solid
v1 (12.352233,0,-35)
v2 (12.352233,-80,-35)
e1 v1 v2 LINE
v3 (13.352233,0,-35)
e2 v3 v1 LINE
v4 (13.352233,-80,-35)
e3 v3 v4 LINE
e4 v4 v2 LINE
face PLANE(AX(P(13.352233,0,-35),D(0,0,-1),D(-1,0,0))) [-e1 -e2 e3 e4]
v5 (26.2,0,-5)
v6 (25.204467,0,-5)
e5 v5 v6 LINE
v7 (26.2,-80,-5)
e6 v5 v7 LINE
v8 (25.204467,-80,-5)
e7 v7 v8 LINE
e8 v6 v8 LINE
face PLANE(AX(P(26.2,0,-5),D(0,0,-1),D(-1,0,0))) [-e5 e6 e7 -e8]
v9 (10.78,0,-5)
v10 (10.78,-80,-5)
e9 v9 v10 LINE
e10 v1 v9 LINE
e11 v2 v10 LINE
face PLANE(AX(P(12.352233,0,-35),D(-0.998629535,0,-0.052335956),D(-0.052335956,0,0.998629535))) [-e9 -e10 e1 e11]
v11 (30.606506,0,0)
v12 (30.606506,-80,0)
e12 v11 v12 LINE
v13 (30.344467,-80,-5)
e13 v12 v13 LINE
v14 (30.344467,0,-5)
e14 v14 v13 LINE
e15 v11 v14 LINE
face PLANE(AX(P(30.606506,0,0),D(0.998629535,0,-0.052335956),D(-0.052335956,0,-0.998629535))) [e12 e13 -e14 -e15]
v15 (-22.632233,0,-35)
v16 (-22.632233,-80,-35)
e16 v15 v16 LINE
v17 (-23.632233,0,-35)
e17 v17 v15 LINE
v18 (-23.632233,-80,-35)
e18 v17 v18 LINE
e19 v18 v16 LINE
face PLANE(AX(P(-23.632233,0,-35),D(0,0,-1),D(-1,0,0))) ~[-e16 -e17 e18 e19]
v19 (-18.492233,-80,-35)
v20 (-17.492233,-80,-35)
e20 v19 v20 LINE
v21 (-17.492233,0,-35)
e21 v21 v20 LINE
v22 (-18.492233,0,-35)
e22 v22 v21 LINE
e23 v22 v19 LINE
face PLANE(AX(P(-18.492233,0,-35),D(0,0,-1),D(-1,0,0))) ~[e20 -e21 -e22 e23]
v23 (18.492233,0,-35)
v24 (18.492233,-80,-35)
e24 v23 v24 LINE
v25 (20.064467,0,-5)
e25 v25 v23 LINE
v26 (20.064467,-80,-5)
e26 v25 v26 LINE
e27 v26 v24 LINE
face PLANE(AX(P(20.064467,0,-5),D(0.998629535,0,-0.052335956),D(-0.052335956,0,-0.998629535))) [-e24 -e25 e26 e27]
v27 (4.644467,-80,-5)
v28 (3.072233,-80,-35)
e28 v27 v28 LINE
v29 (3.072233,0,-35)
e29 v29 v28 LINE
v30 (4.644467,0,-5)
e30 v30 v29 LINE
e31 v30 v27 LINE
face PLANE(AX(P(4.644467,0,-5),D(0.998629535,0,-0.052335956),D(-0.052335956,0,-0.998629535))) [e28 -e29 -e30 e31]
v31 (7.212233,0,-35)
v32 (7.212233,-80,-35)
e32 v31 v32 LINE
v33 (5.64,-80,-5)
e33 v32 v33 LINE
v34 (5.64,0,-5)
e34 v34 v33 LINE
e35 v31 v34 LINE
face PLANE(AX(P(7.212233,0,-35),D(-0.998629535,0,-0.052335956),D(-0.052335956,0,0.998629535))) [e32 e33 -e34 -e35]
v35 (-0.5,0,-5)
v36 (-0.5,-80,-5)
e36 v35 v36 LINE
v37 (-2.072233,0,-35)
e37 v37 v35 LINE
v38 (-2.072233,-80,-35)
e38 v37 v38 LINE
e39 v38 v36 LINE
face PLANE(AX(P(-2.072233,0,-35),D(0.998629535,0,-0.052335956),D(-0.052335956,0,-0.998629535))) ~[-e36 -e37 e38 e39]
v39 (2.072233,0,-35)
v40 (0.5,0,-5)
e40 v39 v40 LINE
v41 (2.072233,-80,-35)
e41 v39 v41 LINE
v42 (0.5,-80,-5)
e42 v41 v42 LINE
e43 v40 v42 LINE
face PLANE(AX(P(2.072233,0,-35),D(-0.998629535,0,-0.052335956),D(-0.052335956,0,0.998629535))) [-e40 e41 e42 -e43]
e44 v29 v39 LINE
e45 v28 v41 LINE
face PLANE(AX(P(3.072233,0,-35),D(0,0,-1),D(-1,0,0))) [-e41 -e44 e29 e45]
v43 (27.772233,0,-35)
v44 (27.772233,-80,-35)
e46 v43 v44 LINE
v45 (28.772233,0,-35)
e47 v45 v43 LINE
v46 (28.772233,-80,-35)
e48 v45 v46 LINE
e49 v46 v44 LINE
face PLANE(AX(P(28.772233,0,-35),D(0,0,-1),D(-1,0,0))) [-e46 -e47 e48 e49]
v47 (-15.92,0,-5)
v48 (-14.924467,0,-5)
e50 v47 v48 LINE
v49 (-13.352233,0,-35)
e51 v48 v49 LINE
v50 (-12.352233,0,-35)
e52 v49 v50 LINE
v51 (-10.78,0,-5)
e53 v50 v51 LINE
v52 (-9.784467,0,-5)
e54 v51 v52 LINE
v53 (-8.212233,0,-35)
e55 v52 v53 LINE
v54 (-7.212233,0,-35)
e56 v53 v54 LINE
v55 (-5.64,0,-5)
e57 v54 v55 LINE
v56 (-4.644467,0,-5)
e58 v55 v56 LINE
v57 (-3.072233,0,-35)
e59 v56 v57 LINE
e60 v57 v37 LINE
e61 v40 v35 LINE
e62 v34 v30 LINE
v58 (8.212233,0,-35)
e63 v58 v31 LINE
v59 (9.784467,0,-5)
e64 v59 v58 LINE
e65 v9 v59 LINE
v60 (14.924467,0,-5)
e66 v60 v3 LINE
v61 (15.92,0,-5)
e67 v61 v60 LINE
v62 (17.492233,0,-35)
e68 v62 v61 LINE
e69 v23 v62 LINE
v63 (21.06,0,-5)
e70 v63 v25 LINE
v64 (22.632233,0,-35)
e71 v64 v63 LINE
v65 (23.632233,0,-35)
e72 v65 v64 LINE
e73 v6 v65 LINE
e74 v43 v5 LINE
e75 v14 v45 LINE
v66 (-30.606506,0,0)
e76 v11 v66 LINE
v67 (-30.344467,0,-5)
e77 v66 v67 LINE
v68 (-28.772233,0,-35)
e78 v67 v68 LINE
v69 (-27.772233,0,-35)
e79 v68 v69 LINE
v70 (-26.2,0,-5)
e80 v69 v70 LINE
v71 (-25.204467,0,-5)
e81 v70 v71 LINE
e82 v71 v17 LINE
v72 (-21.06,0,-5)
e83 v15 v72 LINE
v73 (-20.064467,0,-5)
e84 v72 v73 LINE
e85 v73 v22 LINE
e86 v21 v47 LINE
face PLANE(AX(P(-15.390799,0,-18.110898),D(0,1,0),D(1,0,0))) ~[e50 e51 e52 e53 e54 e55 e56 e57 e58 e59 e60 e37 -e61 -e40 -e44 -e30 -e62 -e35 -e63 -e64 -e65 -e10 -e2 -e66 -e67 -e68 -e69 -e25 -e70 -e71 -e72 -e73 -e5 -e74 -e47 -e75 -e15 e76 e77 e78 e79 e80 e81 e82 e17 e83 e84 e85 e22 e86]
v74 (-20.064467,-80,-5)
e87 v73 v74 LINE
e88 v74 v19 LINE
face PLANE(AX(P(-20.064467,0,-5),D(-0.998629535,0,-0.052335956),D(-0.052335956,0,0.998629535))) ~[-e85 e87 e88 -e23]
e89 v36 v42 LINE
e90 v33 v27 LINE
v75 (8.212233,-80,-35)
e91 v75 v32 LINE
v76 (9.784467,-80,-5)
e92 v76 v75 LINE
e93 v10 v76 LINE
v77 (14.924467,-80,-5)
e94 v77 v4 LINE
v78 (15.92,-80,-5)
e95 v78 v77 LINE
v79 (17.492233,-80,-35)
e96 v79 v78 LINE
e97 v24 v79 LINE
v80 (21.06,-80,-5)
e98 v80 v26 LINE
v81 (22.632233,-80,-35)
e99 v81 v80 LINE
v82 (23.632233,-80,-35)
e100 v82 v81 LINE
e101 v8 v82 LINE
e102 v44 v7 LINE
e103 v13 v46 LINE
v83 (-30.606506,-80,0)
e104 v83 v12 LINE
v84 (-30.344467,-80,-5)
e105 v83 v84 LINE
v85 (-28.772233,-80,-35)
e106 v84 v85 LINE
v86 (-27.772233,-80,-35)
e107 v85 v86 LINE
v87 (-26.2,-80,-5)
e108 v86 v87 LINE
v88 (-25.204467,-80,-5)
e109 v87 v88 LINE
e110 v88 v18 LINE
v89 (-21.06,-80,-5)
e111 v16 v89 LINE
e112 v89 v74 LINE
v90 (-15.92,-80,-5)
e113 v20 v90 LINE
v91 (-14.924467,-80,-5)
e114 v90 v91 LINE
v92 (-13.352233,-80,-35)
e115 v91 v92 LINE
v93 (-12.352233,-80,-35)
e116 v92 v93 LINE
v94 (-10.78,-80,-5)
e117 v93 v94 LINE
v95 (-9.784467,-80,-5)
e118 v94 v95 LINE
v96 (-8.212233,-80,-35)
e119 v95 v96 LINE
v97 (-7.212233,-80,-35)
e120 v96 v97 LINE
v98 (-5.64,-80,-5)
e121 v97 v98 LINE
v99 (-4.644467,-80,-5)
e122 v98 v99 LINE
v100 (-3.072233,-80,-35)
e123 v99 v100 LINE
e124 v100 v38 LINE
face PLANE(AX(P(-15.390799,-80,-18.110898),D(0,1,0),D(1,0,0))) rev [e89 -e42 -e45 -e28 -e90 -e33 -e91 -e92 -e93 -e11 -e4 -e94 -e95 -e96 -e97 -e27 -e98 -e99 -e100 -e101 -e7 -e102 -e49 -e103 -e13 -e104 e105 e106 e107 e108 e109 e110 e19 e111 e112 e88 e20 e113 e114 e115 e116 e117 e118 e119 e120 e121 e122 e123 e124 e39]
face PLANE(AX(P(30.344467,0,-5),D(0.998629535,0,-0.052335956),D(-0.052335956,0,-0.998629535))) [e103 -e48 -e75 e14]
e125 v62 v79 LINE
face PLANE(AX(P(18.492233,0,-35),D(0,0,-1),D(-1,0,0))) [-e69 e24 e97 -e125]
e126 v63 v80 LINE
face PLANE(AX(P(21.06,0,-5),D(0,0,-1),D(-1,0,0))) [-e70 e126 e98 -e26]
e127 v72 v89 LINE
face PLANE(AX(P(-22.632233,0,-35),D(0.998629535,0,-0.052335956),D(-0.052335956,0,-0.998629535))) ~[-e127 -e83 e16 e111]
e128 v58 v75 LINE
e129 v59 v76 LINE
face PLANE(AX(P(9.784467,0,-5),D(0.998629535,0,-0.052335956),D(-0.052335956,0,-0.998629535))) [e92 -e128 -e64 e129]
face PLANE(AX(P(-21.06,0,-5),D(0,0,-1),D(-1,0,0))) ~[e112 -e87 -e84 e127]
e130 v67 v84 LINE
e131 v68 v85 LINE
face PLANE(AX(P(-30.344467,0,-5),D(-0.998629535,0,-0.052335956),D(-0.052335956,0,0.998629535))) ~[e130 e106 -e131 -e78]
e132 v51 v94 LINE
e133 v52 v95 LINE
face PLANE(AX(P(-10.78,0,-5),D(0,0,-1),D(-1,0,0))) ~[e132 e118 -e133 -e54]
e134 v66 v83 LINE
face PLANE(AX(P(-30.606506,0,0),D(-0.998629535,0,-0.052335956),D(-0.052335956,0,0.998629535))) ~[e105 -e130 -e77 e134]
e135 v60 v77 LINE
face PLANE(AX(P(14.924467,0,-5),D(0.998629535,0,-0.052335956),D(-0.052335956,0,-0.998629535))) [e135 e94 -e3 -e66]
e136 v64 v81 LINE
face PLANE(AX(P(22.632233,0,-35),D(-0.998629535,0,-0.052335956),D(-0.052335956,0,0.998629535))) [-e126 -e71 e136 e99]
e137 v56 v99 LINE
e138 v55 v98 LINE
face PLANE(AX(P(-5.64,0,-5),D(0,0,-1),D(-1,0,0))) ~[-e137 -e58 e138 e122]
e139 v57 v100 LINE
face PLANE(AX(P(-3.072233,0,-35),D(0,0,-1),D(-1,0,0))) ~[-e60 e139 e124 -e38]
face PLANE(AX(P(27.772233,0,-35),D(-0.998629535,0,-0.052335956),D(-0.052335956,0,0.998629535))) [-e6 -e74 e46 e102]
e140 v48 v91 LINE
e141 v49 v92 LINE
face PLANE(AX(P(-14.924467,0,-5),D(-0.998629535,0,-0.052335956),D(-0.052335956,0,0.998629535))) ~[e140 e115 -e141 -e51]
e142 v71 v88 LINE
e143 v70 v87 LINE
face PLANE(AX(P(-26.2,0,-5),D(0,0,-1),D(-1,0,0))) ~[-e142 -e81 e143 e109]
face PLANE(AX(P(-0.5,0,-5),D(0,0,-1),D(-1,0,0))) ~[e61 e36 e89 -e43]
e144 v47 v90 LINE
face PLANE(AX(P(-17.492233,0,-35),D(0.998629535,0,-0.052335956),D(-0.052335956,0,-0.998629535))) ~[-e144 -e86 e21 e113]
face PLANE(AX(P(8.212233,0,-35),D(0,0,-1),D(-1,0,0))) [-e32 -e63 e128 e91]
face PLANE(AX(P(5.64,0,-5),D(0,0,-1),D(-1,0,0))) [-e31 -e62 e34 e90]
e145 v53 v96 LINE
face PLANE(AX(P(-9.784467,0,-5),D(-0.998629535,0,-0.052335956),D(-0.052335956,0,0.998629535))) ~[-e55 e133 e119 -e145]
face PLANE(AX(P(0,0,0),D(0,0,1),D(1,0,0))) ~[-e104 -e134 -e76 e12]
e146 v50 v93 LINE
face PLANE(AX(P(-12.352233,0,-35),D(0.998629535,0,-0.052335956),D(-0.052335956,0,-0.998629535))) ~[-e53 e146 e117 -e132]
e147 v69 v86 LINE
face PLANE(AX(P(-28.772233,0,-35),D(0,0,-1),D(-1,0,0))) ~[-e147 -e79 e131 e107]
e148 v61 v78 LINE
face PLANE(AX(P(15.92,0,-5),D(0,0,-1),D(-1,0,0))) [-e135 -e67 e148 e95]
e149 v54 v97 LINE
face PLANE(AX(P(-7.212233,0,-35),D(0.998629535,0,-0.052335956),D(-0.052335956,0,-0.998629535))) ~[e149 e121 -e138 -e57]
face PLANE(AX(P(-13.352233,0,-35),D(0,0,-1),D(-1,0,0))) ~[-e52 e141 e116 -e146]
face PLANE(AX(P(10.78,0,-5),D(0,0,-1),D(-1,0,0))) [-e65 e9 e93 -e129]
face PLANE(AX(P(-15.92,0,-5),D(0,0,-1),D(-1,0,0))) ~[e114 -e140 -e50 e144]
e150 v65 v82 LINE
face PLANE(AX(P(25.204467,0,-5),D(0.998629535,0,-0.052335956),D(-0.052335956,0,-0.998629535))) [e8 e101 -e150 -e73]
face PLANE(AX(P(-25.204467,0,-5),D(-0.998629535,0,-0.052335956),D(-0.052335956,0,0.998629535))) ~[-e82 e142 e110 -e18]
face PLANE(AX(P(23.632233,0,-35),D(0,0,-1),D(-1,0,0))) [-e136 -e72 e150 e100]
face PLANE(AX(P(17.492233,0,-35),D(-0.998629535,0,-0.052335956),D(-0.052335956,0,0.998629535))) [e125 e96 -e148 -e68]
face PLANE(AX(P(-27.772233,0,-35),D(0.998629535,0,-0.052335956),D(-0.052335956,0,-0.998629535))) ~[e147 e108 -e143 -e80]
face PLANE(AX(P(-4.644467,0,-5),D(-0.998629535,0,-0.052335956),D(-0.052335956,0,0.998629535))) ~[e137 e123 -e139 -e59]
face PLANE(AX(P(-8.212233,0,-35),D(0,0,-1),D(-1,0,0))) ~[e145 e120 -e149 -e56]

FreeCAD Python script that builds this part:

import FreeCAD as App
import Part
import Sketcher

V = App.Vector
Q = App.Units.Quantity


def add_polygon(sketch, points):
    """Adds a closed chain of lines whose ends are joined by coincident constraints."""
    first, n = sketch.GeometryCount, len(points)
    for a, b in zip(points, points[1:] + points[:1]):
        sketch.addGeometry(Part.LineSegment(App.Vector(*a, 0), App.Vector(*b, 0)), False)
    for i in range(n):
        sketch.addConstraint(Sketcher.Constraint("Coincident", first + i, 2, first + (i + 1) % n, 1))

doc = App.newDocument("Part")
params = doc.addObject("Spreadsheet::Sheet", "Params")
for row, (alias, value) in enumerate([
    ("sketch1_width", "1 mm"),
    ("sketch1_height", "5 mm"),
    ("sketch1_width2", "0.5 mm"),
    ("pad1_length", "80 mm"),
], start=1):
    params.set(f"A{row}", alias)
    params.set(f"B{row}", "=" + value)
    params.setAlias(f"B{row}", alias)

body = doc.addObject("PartDesign::Body", "Body")

# Sketch on XZ plane
sketch1 = body.newObject("Sketcher::SketchObject", "Sketch")
sketch1.AttachmentSupport = (doc.getObject("XZ_Plane"), [""])
sketch1.MapMode = "FlatFace"
add_polygon(sketch1, [(0, -5), (0, 0), (30.606506, 0), (30.344467, -5), (28.772233, -35), (27.772233, -35), (26.2, -5), (25.204467, -5), (23.632233, -35), (22.632233, -35), (21.06, -5), (20.064467, -5), (18.492233, -35), (17.492233, -35), (15.92, -5), (14.924467, -5), (13.352233, -35), (12.352233, -35), (10.78, -5), (9.784467, -5), (8.212233, -35), (7.212233, -35), (5.64, -5), (4.644467, -5), (3.072233, -35), (2.072233, -35), (0.5, -5)])  # lines 0-26
sketch1.addConstraint([
    Sketcher.Constraint("Vertical", 0),
    Sketcher.Constraint("Horizontal", 1),
    Sketcher.Constraint("Horizontal", 4),
    Sketcher.Constraint("Horizontal", 6),
    Sketcher.Constraint("Horizontal", 8),
    Sketcher.Constraint("Horizontal", 10),
    Sketcher.Constraint("Horizontal", 12),
    Sketcher.Constraint("Horizontal", 14),
    Sketcher.Constraint("Horizontal", 16),
    Sketcher.Constraint("Horizontal", 18),
    Sketcher.Constraint("Horizontal", 20),
    Sketcher.Constraint("Horizontal", 22),
    Sketcher.Constraint("Horizontal", 24),
    Sketcher.Constraint("Horizontal", 26),
    Sketcher.Constraint("Coincident", 0, 2, -1, 1),
    Sketcher.Constraint("Parallel", 2, 3),
    Sketcher.Constraint("Parallel", 3, 7),
    Sketcher.Constraint("Parallel", 5, 9),
    Sketcher.Constraint("Parallel", 7, 11),
    Sketcher.Constraint("Parallel", 9, 13),
    Sketcher.Constraint("Parallel", 11, 15),
    Sketcher.Constraint("Parallel", 13, 17),
    Sketcher.Constraint("Parallel", 15, 19),
    Sketcher.Constraint("Parallel", 17, 21),
    Sketcher.Constraint("Parallel", 19, 23),
    Sketcher.Constraint("Parallel", 21, 25),
    Sketcher.Constraint("Horizontal", 2, 2, 5, 2),
    Sketcher.Constraint("Horizontal", 4, 2, 7, 2),
    Sketcher.Constraint("Horizontal", 6, 2, 9, 2),
    Sketcher.Constraint("Horizontal", 8, 2, 11, 2),
    Sketcher.Constraint("Horizontal", 10, 2, 13, 2),
    Sketcher.Constraint("Horizontal", 12, 2, 15, 2),
    Sketcher.Constraint("Horizontal", 14, 2, 17, 2),
    Sketcher.Constraint("Horizontal", 16, 2, 19, 2),
    Sketcher.Constraint("Horizontal", 18, 2, 21, 2),
    Sketcher.Constraint("Horizontal", 20, 2, 23, 2),
    Sketcher.Constraint("Horizontal", 22, 2, 25, 2),
    Sketcher.Constraint("Equal", 4, 8),
    Sketcher.Constraint("Equal", 6, 10),
    Sketcher.Constraint("Equal", 8, 12),
    Sketcher.Constraint("Equal", 10, 14),
    Sketcher.Constraint("Equal", 12, 16),
    Sketcher.Constraint("Equal", 14, 18),
    Sketcher.Constraint("Equal", 16, 20),
    Sketcher.Constraint("Equal", 18, 22),
    Sketcher.Constraint("Equal", 20, 24),
    Sketcher.Constraint("Equal", 3, 5),
    Sketcher.Constraint("DistanceX", 4, 2, 4, 1, Q("1 mm")),
    Sketcher.Constraint("DistanceY", 0, 1, 0, 2, Q("5 mm")),
    Sketcher.Constraint("Angle", 2, Q("-93 deg")),
    Sketcher.Constraint("DistanceX", 26, 2, 26, 1, Q("0.5 mm")),
    Sketcher.Constraint("DistanceY", 3, 2, -1, 1, Q("35 mm")),
    Sketcher.Constraint("DistanceX", -1, 1, 5, 2, Q("26.2 mm")),
])
sketch1.setExpression("Constraints[74]", "Params.sketch1_width")
sketch1.setExpression("Constraints[75]", "Params.sketch1_height")
sketch1.setExpression("Constraints[77]", "Params.sketch1_width2")
pad1 = body.newObject("PartDesign::Pad", "Pad")
pad1.Profile = sketch1
pad1.setExpression("Length", "Params.pad1_length")
doc.recompute()

mirrored = body.newObject("PartDesign::Mirrored", "Mirrored")
mirrored.Originals = [pad1]
mirrored.MirrorPlane = (doc.getObject("YZ_Plane"), [""])
body.Tip = mirrored

doc.recompute()
